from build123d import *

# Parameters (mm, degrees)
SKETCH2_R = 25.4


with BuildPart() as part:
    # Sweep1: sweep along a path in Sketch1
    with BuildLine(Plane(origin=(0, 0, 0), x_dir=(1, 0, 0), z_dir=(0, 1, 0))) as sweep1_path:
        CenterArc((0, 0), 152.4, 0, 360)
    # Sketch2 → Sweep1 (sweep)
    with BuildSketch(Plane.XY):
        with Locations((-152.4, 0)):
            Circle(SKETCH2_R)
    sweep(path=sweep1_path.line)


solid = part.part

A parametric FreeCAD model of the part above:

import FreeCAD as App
import Part
import Sketcher
from FreeCAD import Vector
Q = App.Units.Quantity

doc = App.newDocument("Part")
body = doc.addObject("PartDesign::Body", "Body")

# Sketch on XY plane
sketch1 = body.newObject("Sketcher::SketchObject", "Sketch")
sketch1.AttachmentSupport = (doc.getObject("XY_Plane"), [""])
sketch1.MapMode = "FlatFace"
sketch1.addGeometry(Part.Circle(Vector(-152, 0, 0), Vector(0, 0, 1), 25), False)
sketch1.addConstraint([
    Sketcher.Constraint("PointOnObject", 0, 3, -1),
    Sketcher.Constraint("Diameter", 0, Q("2 in")),
    Sketcher.Constraint("DistanceX", 0, 3, -1, 1, Q("6 in")),
])

# Sketch on XZ plane
sketch2 = body.newObject("Sketcher::SketchObject", "Sketch001")
sketch2.AttachmentSupport = (doc.getObject("XZ_Plane"), [""])
sketch2.MapMode = "FlatFace"
sketch2.addGeometry(Part.Circle(Vector(0, 0, 0), Vector(0, 0, 1), 152), False)
sketch2.addConstraint([
    Sketcher.Constraint("Coincident", 0, 3, -1, 1),
    Sketcher.Constraint("Diameter", 0, Q("12 in")),
])
doc.recompute()

additivepipe = body.newObject("PartDesign::AdditivePipe", "AdditivePipe")
additivepipe.Profile = sketch1
additivepipe.Spine = (sketch2, ["Edge1"])

doc.recompute()
